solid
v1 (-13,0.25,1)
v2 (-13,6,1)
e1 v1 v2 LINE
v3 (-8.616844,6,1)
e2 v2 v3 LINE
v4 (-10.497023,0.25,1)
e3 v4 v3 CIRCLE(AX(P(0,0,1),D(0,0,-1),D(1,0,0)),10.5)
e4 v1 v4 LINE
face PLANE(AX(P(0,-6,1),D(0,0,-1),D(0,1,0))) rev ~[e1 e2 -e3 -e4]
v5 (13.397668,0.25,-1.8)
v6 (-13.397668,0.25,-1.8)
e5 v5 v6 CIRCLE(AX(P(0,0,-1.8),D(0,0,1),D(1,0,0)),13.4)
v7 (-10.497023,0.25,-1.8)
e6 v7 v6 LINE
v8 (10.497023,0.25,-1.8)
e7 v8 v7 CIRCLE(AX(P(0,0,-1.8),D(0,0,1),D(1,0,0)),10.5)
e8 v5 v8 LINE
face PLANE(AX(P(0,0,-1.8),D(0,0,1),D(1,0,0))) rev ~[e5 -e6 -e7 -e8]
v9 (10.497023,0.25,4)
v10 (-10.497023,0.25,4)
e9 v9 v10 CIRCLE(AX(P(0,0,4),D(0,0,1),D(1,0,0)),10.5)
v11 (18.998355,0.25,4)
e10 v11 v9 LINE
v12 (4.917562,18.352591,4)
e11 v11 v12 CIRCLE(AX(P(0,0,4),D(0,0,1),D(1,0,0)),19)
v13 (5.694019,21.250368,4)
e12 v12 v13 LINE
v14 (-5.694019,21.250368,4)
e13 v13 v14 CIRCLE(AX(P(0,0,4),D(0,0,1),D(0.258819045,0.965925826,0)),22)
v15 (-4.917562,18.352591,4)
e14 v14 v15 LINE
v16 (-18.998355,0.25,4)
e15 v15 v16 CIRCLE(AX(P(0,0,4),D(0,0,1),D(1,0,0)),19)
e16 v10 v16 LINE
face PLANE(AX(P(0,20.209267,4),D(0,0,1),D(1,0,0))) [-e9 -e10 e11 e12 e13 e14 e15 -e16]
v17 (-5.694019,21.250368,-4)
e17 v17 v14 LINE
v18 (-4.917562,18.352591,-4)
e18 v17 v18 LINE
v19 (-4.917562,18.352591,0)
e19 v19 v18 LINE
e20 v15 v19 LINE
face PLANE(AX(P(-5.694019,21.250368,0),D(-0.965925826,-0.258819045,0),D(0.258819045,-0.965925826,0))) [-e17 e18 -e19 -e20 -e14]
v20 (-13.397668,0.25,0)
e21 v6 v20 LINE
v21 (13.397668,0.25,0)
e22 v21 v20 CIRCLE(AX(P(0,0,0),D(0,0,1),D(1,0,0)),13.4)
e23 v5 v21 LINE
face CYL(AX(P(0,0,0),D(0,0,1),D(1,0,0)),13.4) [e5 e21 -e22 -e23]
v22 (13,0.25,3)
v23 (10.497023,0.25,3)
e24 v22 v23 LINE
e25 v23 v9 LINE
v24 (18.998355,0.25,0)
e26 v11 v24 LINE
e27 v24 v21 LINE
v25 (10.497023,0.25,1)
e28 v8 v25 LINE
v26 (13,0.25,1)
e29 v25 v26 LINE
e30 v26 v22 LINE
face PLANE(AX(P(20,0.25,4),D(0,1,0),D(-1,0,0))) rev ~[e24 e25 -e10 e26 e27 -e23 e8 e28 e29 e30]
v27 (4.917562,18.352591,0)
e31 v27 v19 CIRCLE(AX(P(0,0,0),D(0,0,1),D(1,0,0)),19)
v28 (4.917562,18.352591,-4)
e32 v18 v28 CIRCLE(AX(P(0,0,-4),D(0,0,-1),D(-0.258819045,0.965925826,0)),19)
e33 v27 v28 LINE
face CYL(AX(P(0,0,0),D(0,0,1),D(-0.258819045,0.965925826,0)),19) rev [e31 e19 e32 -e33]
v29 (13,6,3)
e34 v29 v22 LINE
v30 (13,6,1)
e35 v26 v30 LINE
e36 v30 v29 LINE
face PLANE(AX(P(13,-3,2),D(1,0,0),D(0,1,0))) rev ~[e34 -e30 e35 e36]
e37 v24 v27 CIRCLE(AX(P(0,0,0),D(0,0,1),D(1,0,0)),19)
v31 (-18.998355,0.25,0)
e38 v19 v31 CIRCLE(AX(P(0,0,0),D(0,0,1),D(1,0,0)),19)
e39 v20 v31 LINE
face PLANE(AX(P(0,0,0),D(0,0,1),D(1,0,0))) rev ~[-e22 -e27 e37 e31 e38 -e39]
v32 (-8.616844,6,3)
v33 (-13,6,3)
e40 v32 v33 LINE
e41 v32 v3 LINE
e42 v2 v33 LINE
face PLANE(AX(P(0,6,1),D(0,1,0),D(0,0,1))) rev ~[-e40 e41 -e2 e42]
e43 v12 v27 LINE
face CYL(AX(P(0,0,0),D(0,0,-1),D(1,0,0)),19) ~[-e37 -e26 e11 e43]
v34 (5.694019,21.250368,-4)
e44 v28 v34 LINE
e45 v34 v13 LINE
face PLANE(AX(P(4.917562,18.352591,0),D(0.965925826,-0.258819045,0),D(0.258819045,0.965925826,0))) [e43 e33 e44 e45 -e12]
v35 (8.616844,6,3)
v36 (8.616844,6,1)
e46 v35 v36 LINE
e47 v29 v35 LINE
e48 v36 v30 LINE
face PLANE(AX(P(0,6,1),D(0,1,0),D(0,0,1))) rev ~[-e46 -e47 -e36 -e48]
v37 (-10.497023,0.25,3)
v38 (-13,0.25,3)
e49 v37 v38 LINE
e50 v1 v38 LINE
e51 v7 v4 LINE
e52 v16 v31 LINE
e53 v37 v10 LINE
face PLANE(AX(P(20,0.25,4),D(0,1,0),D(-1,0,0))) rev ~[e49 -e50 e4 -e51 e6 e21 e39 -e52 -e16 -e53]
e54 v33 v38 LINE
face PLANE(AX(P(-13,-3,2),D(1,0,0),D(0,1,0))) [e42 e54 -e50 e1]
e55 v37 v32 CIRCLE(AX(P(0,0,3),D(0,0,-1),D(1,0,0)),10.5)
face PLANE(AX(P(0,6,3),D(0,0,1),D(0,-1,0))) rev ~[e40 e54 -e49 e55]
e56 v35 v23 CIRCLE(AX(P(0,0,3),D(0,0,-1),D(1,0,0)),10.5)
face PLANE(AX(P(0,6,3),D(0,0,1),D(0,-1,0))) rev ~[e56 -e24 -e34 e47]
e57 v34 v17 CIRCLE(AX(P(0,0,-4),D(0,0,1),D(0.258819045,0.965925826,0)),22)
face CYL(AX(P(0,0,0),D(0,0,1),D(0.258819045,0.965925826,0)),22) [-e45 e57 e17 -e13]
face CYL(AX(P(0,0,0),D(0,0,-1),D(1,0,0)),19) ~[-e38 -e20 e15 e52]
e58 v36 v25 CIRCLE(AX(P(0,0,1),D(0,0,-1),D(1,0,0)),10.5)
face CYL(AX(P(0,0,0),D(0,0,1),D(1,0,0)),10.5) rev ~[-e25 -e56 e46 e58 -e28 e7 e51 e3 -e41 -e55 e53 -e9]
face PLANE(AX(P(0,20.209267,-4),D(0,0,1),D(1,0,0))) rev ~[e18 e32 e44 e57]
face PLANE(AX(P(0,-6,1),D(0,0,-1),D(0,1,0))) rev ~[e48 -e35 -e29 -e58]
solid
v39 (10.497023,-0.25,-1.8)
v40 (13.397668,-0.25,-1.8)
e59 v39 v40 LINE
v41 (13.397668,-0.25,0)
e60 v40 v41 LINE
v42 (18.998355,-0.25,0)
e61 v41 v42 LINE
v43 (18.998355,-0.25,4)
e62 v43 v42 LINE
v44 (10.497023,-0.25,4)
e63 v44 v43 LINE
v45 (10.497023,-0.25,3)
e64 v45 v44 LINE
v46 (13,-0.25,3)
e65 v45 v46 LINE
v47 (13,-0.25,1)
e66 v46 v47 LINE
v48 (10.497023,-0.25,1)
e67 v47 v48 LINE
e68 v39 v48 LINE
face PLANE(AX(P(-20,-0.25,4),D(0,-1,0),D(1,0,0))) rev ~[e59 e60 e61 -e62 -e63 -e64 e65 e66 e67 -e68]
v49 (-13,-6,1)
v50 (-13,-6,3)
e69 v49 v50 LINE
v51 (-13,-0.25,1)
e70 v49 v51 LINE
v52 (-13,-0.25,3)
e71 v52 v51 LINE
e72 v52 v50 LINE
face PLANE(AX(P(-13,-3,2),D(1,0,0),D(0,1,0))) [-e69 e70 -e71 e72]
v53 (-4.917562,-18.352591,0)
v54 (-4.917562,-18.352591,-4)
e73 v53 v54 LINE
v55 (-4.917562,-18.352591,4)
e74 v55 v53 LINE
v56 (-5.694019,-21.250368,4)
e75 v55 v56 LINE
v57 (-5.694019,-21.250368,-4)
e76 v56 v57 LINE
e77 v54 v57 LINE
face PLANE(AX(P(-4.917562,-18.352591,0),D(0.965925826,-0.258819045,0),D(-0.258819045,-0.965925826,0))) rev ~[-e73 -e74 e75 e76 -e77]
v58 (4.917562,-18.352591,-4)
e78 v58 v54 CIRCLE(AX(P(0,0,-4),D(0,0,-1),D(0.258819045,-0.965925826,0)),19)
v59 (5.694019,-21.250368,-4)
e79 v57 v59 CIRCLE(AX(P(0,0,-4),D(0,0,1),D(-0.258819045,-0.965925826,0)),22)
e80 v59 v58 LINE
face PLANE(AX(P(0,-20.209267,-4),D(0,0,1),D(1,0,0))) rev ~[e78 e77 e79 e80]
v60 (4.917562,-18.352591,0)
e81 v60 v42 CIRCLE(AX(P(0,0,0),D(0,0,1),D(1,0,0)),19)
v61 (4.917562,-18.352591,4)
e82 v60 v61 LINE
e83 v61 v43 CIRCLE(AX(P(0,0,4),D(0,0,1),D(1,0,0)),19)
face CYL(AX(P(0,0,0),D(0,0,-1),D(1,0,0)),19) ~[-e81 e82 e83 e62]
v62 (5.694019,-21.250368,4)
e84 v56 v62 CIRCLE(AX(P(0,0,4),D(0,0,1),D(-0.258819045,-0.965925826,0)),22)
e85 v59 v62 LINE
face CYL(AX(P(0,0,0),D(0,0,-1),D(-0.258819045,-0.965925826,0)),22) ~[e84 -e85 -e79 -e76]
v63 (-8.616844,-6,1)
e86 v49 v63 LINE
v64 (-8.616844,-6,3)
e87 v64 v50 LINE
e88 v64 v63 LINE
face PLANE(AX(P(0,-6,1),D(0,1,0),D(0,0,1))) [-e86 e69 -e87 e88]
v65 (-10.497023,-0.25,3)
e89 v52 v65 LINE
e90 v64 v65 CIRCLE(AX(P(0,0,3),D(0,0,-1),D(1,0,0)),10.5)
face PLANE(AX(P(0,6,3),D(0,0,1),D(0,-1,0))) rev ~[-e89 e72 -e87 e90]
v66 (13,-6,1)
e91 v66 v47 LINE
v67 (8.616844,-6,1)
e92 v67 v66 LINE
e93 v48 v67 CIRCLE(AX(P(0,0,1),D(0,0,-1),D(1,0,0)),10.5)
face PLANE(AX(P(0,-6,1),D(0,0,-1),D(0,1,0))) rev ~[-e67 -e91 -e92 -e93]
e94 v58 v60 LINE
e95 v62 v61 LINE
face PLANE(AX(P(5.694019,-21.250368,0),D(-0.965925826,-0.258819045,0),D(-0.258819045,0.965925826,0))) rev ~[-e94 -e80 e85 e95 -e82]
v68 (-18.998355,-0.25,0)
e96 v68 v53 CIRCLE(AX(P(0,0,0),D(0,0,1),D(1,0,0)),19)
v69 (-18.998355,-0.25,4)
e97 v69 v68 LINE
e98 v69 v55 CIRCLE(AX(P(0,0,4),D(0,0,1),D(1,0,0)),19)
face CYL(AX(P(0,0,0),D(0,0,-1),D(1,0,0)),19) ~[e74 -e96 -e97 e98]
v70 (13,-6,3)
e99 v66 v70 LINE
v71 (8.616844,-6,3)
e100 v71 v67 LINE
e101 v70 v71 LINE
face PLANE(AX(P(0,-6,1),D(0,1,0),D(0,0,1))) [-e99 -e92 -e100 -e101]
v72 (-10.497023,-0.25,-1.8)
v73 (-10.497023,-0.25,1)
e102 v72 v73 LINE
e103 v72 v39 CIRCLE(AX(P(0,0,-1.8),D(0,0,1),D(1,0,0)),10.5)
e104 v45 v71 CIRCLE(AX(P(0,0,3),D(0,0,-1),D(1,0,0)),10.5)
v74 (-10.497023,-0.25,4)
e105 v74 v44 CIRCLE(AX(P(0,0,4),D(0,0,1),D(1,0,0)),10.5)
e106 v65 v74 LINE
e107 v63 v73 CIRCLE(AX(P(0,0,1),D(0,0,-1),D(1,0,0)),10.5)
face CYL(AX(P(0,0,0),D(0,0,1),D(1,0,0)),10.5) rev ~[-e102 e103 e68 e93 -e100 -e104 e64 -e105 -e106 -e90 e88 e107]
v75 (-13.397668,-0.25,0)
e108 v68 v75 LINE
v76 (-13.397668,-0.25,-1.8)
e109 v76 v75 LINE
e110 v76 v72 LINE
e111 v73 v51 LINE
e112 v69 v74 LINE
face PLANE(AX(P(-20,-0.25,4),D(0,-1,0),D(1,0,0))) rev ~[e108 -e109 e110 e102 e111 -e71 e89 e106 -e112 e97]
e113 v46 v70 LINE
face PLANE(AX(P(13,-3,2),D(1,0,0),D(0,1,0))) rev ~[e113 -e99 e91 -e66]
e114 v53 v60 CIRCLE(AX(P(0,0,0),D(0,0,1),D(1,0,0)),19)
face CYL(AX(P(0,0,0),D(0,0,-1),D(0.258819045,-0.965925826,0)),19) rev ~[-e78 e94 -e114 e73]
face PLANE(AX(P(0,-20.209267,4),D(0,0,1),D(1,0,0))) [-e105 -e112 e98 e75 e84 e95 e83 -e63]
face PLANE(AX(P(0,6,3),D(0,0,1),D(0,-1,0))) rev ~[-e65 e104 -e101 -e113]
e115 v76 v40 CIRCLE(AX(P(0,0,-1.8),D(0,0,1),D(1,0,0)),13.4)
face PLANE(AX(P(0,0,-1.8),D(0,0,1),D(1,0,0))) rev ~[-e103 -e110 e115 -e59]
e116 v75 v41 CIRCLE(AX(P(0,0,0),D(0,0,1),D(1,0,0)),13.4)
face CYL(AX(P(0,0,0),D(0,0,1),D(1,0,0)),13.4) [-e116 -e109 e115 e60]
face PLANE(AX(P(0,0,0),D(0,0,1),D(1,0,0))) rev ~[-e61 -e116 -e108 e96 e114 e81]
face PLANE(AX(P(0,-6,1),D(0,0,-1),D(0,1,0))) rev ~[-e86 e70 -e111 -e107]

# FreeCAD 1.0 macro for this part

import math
import FreeCAD as App
import Part
import Sketcher

V = App.Vector
Q = App.Units.Quantity

doc = App.newDocument("Part")
body = doc.addObject("PartDesign::Body", "Body")
body.AllowCompound = True

# Sketch on XY plane
sketch1 = body.newObject("Sketcher::SketchObject", "Sketch")
sketch1.AttachmentSupport = (doc.getObject("XY_Plane"), [""])
sketch1.MapMode = "FlatFace"
sketch1.addGeometry(Part.Circle(V(0, 0, 0), V(0, 0, 1), 19), False)
sketch1.addGeometry(Part.Circle(V(0, 0, 0), V(0, 0, 1), 10), False)
sketch1.addConstraint(Sketcher.Constraint("Coincident", 0, 3, -1, 1))
sketch1.addConstraint(Sketcher.Constraint("Coincident", 1, 3, -1, 1))
sketch1.addConstraint(Sketcher.Constraint("Diameter", 0, 38.0))
sketch1.addConstraint(Sketcher.Constraint("Diameter", 1, 21.0))
pad1 = body.newObject("PartDesign::Pad", "Pad")
pad1.Profile = sketch1
pad1.Length = 4

# Sketch on XY plane
sketch2 = body.newObject("Sketcher::SketchObject", "Sketch001")
sketch2.AttachmentSupport = (doc.getObject("XY_Plane"), [""])
sketch2.MapMode = "FlatFace"
sketch2.addGeometry(Part.Circle(V(0, 0, 0), V(0, 0, 1), 13), False)
sketch2.addGeometry(Part.Circle(V(0, 0, 0), V(0, 0, 1), 10), False)
sketch2.addConstraint(Sketcher.Constraint("Coincident", 0, 3, -1, 1))
sketch2.addConstraint(Sketcher.Constraint("Coincident", 1, 3, -1, 1))
sketch2.addConstraint(Sketcher.Constraint("Diameter", 1, 21.0))
sketch2.addConstraint(Sketcher.Constraint("Diameter", 0, 26.8))
pad2 = body.newObject("PartDesign::Pad", "Pad001")
pad2.Profile = sketch2
pad2.Length = 1.8
pad2.Reversed = True

# Sketch on YZ plane
sketch3 = body.newObject("Sketcher::SketchObject", "Sketch002")
sketch3.AttachmentSupport = (doc.getObject("YZ_Plane"), [""])
sketch3.MapMode = "FlatFace"
sketch3.addGeometry(Part.LineSegment(V(-6, 3, 0), V(-6, 1, 0)), False)
sketch3.addGeometry(Part.LineSegment(V(-6, 1, 0), V(6, 1, 0)), False)
sketch3.addGeometry(Part.LineSegment(V(6, 1, 0), V(6, 3, 0)), False)
sketch3.addGeometry(Part.LineSegment(V(6, 3, 0), V(-6, 3, 0)), False)
sketch3.addConstraint(Sketcher.Constraint("Coincident", 0, 2, 1, 1))
sketch3.addConstraint(Sketcher.Constraint("Coincident", 1, 2, 2, 1))
sketch3.addConstraint(Sketcher.Constraint("Coincident", 2, 2, 3, 1))
sketch3.addConstraint(Sketcher.Constraint("Coincident", 3, 2, 0, 1))
sketch3.addConstraint(Sketcher.Constraint("Vertical", 0))
sketch3.addConstraint(Sketcher.Constraint("Horizontal", 1))
sketch3.addConstraint(Sketcher.Constraint("Vertical", 2))
sketch3.addConstraint(Sketcher.Constraint("Horizontal", 3))
sketch3.addConstraint(Sketcher.Constraint("DistanceX", 1, 1, 1, 2, 12.0))
sketch3.addConstraint(Sketcher.Constraint("DistanceY", 0, 2, 0, 1, 2.0))
sketch3.addConstraint(Sketcher.Constraint("DistanceX", 0, 2, -1, 1, 6.0))
sketch3.addConstraint(Sketcher.Constraint("DistanceY", -1, 1, 0, 2, 1.0))
pocket1 = body.newObject("PartDesign::Pocket", "Pocket")
pocket1.Profile = sketch3
pocket1.Length = 26
pocket1.Midplane = True

# Sketch on XY plane
sketch4 = body.newObject("Sketcher::SketchObject", "Sketch003")
sketch4.AttachmentSupport = (doc.getObject("XY_Plane"), [""])
sketch4.MapMode = "FlatFace"
sketch4.AttachmentOffset = App.Placement(V(0, 0, 4), App.Rotation())
sketch4.addGeometry(Part.LineSegment(V(-20, 0.2, 0), V(-20, -0.2, 0)), False)
sketch4.addGeometry(Part.LineSegment(V(-20, -0.2, 0), V(20, -0.2, 0)), False)
sketch4.addGeometry(Part.LineSegment(V(20, -0.2, 0), V(20, 0.2, 0)), False)
sketch4.addGeometry(Part.LineSegment(V(20, 0.2, 0), V(-20, 0.2, 0)), False)
sketch4.addConstraint(Sketcher.Constraint("Coincident", 0, 2, 1, 1))
sketch4.addConstraint(Sketcher.Constraint("Coincident", 1, 2, 2, 1))
sketch4.addConstraint(Sketcher.Constraint("Coincident", 2, 2, 3, 1))
sketch4.addConstraint(Sketcher.Constraint("Coincident", 3, 2, 0, 1))
sketch4.addConstraint(Sketcher.Constraint("Vertical", 0))
sketch4.addConstraint(Sketcher.Constraint("Horizontal", 1))
sketch4.addConstraint(Sketcher.Constraint("Vertical", 2))
sketch4.addConstraint(Sketcher.Constraint("Horizontal", 3))
sketch4.addConstraint(Sketcher.Constraint("Symmetric", 0, 2, 2, 2, -1, 1))
sketch4.addConstraint(Sketcher.Constraint("DistanceX", 1, 1, 1, 2, 40.0))
sketch4.addConstraint(Sketcher.Constraint("DistanceY", 0, 2, 0, 1, 0.5))
pocket2 = body.newObject("PartDesign::Pocket", "Pocket001")
pocket2.Profile = sketch4
pocket2.Length = 25

# Sketch on XY plane
sketch5 = body.newObject("Sketcher::SketchObject", "Sketch004")
sketch5.AttachmentSupport = (doc.getObject("XY_Plane"), [""])
sketch5.MapMode = "FlatFace"
sketch5.addGeometry(Part.ArcOfCircle(Part.Circle(V(0, 0, 0), V(0, 0, 1), 22), math.radians(-105), math.radians(-75)), False)
sketch5.addGeometry(Part.LineSegment(V(5.7, -21.3, 0), V(4.9, -18.4, 0)), False)
sketch5.addGeometry(Part.ArcOfCircle(Part.Circle(V(0, 0, 0), V(0, 0, 1), 19), math.radians(-105), math.radians(-75)), False)
sketch5.addGeometry(Part.LineSegment(V(-4.9, -18.4, 0), V(-5.7, -21.3, 0)), False)
sketch5.addGeometry(Part.LineSegment(V(4.9, 18.4, 0), V(5.7, 21.3, 0)), False)
sketch5.addGeometry(Part.ArcOfCircle(Part.Circle(V(0, 0, 0), V(0, 0, 1), 22), math.radians(75), math.radians(105)), False)
sketch5.addGeometry(Part.LineSegment(V(-5.7, 21.3, 0), V(-4.9, 18.4, 0)), False)
sketch5.addGeometry(Part.ArcOfCircle(Part.Circle(V(0, 0, 0), V(0, 0, 1), 19), math.radians(75), math.radians(105)), False)
sketch5.addConstraint(Sketcher.Constraint("Coincident", 0, 2, 1, 1))
sketch5.addConstraint(Sketcher.Constraint("Coincident", 1, 2, 2, 2))
sketch5.addConstraint(Sketcher.Constraint("Coincident", 2, 1, 3, 1))
sketch5.addConstraint(Sketcher.Constraint("Coincident", 3, 2, 0, 1))
sketch5.addConstraint(Sketcher.Constraint("Coincident", 4, 2, 5, 1))
sketch5.addConstraint(Sketcher.Constraint("Coincident", 5, 2, 6, 1))
sketch5.addConstraint(Sketcher.Constraint("Coincident", 6, 2, 7, 2))
sketch5.addConstraint(Sketcher.Constraint("Coincident", 7, 1, 4, 1))
sketch5.addConstraint(Sketcher.Constraint("Coincident", 0, 3, -1, 1))
sketch5.addConstraint(Sketcher.Constraint("Coincident", 2, 3, -1, 1))
sketch5.addConstraint(Sketcher.Constraint("Coincident", 5, 3, -1, 1))
sketch5.addConstraint(Sketcher.Constraint("Coincident", 7, 3, -1, 1))
sketch5.addConstraint(Sketcher.Constraint("Equal", 0, 5))
sketch5.addConstraint(Sketcher.Constraint("Equal", 2, 7))
sketch5.addConstraint(Sketcher.Constraint("Parallel", 3, 4))
sketch5.addConstraint(Sketcher.Constraint("Parallel", 1, 6))
sketch5.addConstraint(Sketcher.Constraint("Horizontal", 1, 2, 2, 1))
sketch5.addConstraint(Sketcher.Constraint("Horizontal", 0, 2, 3, 2))
sketch5.addConstraint(Sketcher.Constraint("Horizontal", 4, 2, 5, 2))
sketch5.addConstraint(Sketcher.Constraint("Vertical", 0, 2, 4, 2))
sketch5.addConstraint(Sketcher.Constraint("Radius", 0, 22.0))
sketch5.addConstraint(Sketcher.Constraint("Radius", 2, 19.0))
sketch5.addConstraint(Sketcher.Constraint("Angle", 1, Q("105 deg")))
sketch5.addConstraint(Sketcher.Constraint("DistanceX", -1, 1, 0, 2, 5.694019))
pad3 = body.newObject("PartDesign::Pad", "Pad002")
pad3.Profile = sketch5
pad3.Length = 8
pad3.Midplane = True

doc.recompute()
